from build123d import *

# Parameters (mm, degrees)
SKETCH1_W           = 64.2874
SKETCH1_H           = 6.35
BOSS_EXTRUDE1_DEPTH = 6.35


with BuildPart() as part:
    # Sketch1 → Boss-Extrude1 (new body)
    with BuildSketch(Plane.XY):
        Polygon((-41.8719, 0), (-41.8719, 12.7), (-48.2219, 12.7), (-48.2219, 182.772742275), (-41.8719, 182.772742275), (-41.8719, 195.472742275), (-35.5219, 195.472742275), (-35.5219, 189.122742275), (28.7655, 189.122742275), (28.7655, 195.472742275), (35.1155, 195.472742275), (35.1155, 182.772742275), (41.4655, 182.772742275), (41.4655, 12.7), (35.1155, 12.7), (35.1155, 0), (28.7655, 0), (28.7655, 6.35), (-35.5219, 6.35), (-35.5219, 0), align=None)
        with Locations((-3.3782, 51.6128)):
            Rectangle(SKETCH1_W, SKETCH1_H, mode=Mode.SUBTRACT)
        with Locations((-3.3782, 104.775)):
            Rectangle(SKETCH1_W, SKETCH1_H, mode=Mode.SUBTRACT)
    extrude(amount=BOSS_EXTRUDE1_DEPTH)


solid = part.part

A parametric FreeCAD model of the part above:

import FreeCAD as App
import Part
import Sketcher
Q = App.Units.Quantity

doc = App.newDocument("Part")
params = doc.addObject("Spreadsheet::Sheet", "Params")
for row, (alias, value) in enumerate([
    ("sketch1_height", "0.5 in"),
    ("sketch1_width", "0.25 in"),
    ("sketch1_width2", "2.531 in"),
    ("pad1_length", "0.25 in"),
], start=1):
    params.set(f"A{row}", alias)
    params.set(f"B{row}", "=" + value)
    params.setAlias(f"B{row}", alias)

body = doc.addObject("PartDesign::Body", "Body")

sketch1 = doc.addObject("Sketcher::SketchObject", "Sketch")
body.addObject(sketch1)
sketch1.AttachmentSupport = (doc.XY_Plane, [""])
sketch1.MapMode = "FlatFace"
sketch1.addGeometry([
    Part.LineSegment(App.Vector(-41.8719, 12.7, 0), App.Vector(-41.8719, 0, 0)),
    Part.LineSegment(App.Vector(-41.8719, 0, 0), App.Vector(-35.5219, 0, 0)),
    Part.LineSegment(App.Vector(-35.5219, 0, 0), App.Vector(-35.5219, 6.35, 0)),
    Part.LineSegment(App.Vector(-35.5219, 6.35, 0), App.Vector(28.7655, 6.35, 0)),
    Part.LineSegment(App.Vector(28.7655, 6.35, 0), App.Vector(28.7655, 0, 0)),
    Part.LineSegment(App.Vector(28.7655, 0, 0), App.Vector(35.1155, 0, 0)),
    Part.LineSegment(App.Vector(35.1155, 0, 0), App.Vector(35.1155, 12.7, 0)),
    Part.LineSegment(App.Vector(35.1155, 12.7, 0), App.Vector(41.4655, 12.7, 0)),
    Part.LineSegment(App.Vector(41.4655, 12.7, 0), App.Vector(41.4655, 182.772742, 0)),
    Part.LineSegment(App.Vector(41.4655, 182.772742, 0), App.Vector(35.1155, 182.772742, 0)),
    Part.LineSegment(App.Vector(35.1155, 182.772742, 0), App.Vector(35.1155, 195.472742, 0)),
    Part.LineSegment(App.Vector(35.1155, 195.472742, 0), App.Vector(28.7655, 195.472742, 0)),
    Part.LineSegment(App.Vector(28.7655, 195.472742, 0), App.Vector(28.7655, 189.122742, 0)),
    Part.LineSegment(App.Vector(28.7655, 189.122742, 0), App.Vector(-35.5219, 189.122742, 0)),
    Part.LineSegment(App.Vector(-35.5219, 189.122742, 0), App.Vector(-35.5219, 195.472742, 0)),
    Part.LineSegment(App.Vector(-35.5219, 195.472742, 0), App.Vector(-41.8719, 195.472742, 0)),
    Part.LineSegment(App.Vector(-41.8719, 195.472742, 0), App.Vector(-41.8719, 182.772742, 0)),
    Part.LineSegment(App.Vector(-41.8719, 182.772742, 0), App.Vector(-48.2219, 182.772742, 0)),
    Part.LineSegment(App.Vector(-48.2219, 182.772742, 0), App.Vector(-48.2219, 12.7, 0)),
    Part.LineSegment(App.Vector(-48.2219, 12.7, 0), App.Vector(-41.8719, 12.7, 0)),
    Part.LineSegment(App.Vector(-35.5219, 48.4378, 0), App.Vector(-35.5219, 54.7878, 0)),
    Part.LineSegment(App.Vector(-35.5219, 54.7878, 0), App.Vector(28.7655, 54.7878, 0)),
    Part.LineSegment(App.Vector(28.7655, 54.7878, 0), App.Vector(28.7655, 48.4378, 0)),
    Part.LineSegment(App.Vector(28.7655, 48.4378, 0), App.Vector(-35.5219, 48.4378, 0)),
    Part.LineSegment(App.Vector(-35.5219, 101.6, 0), App.Vector(-35.5219, 107.95, 0)),
    Part.LineSegment(App.Vector(-35.5219, 107.95, 0), App.Vector(28.7655, 107.95, 0)),
    Part.LineSegment(App.Vector(28.7655, 107.95, 0), App.Vector(28.7655, 101.6, 0)),
    Part.LineSegment(App.Vector(28.7655, 101.6, 0), App.Vector(-35.5219, 101.6, 0)),
], False)
sketch1.addConstraint([
    Sketcher.Constraint("Coincident", 0, 2, 1, 1),
    Sketcher.Constraint("Coincident", 1, 2, 2, 1),
    Sketcher.Constraint("Coincident", 2, 2, 3, 1),
    Sketcher.Constraint("Coincident", 3, 2, 4, 1),
    Sketcher.Constraint("Coincident", 4, 2, 5, 1),
    Sketcher.Constraint("Coincident", 5, 2, 6, 1),
    Sketcher.Constraint("Coincident", 6, 2, 7, 1),
    Sketcher.Constraint("Coincident", 7, 2, 8, 1),
    Sketcher.Constraint("Coincident", 8, 2, 9, 1),
    Sketcher.Constraint("Coincident", 9, 2, 10, 1),
    Sketcher.Constraint("Coincident", 10, 2, 11, 1),
    Sketcher.Constraint("Coincident", 11, 2, 12, 1),
    Sketcher.Constraint("Coincident", 12, 2, 13, 1),
    Sketcher.Constraint("Coincident", 13, 2, 14, 1),
    Sketcher.Constraint("Coincident", 14, 2, 15, 1),
    Sketcher.Constraint("Coincident", 15, 2, 16, 1),
    Sketcher.Constraint("Coincident", 16, 2, 17, 1),
    Sketcher.Constraint("Coincident", 17, 2, 18, 1),
    Sketcher.Constraint("Coincident", 18, 2, 19, 1),
    Sketcher.Constraint("Coincident", 19, 2, 0, 1),
    Sketcher.Constraint("Coincident", 20, 2, 21, 1),
    Sketcher.Constraint("Coincident", 21, 2, 22, 1),
    Sketcher.Constraint("Coincident", 22, 2, 23, 1),
    Sketcher.Constraint("Coincident", 23, 2, 20, 1),
    Sketcher.Constraint("Coincident", 24, 2, 25, 1),
    Sketcher.Constraint("Coincident", 25, 2, 26, 1),
    Sketcher.Constraint("Coincident", 26, 2, 27, 1),
    Sketcher.Constraint("Coincident", 27, 2, 24, 1),
    Sketcher.Constraint("Vertical", 0),
    Sketcher.Constraint("Horizontal", 1),
    Sketcher.Constraint("Vertical", 2),
    Sketcher.Constraint("Horizontal", 3),
    Sketcher.Constraint("Vertical", 4),
    Sketcher.Constraint("Horizontal", 5),
    Sketcher.Constraint("Vertical", 6),
    Sketcher.Constraint("Horizontal", 7),
    Sketcher.Constraint("Vertical", 8),
    Sketcher.Constraint("Horizontal", 9),
    Sketcher.Constraint("Vertical", 10),
    Sketcher.Constraint("Horizontal", 11),
    Sketcher.Constraint("Vertical", 12),
    Sketcher.Constraint("Horizontal", 13),
    Sketcher.Constraint("Vertical", 14),
    Sketcher.Constraint("Horizontal", 15),
    Sketcher.Constraint("Vertical", 16),
    Sketcher.Constraint("Horizontal", 17),
    Sketcher.Constraint("Vertical", 18),
    Sketcher.Constraint("Horizontal", 19),
    Sketcher.Constraint("Vertical", 20),
    Sketcher.Constraint("Horizontal", 21),
    Sketcher.Constraint("Vertical", 22),
    Sketcher.Constraint("Horizontal", 23),
    Sketcher.Constraint("Vertical", 24),
    Sketcher.Constraint("Horizontal", 25),
    Sketcher.Constraint("Vertical", 26),
    Sketcher.Constraint("Horizontal", 27),
    Sketcher.Constraint("PointOnObject", 0, 2, -1),
    Sketcher.Constraint("PointOnObject", 4, 2, -1),
    Sketcher.Constraint("Horizontal", 11, 2, 14, 2),
    Sketcher.Constraint("Horizontal", 9, 2, 16, 2),
    Sketcher.Constraint("Horizontal", 7, 2, 18, 2),
    Sketcher.Constraint("Vertical", 6, 2, 9, 2),
    Sketcher.Constraint("Vertical", 4, 2, 11, 2),
    Sketcher.Constraint("Vertical", 2, 2, 13, 2),
    Sketcher.Constraint("Vertical", 0, 2, 15, 2),
    Sketcher.Constraint("Vertical", 14, 2, 20, 2),
    Sketcher.Constraint("Vertical", 12, 2, 21, 2),
    Sketcher.Constraint("Vertical", 23, 2, 24, 2),
    Sketcher.Constraint("Vertical", 22, 2, 25, 2),
    Sketcher.Constraint("Equal", 1, 5),
    Sketcher.Constraint("Equal", 5, 7),
    Sketcher.Constraint("Equal", 15, 17),
    Sketcher.Constraint("Equal", 19, 2),
    Sketcher.Constraint("Equal", 6, 10),
    Sketcher.Constraint("Equal", 4, 12),
    Sketcher.Constraint("Equal", 14, 20),
    Sketcher.Constraint("Equal", 22, 24),
    Sketcher.Constraint("DistanceY", 0, 2, 0, 1, Q("0.5 in")),
    Sketcher.Constraint("DistanceY", -1, 1, 26, 2, Q("4 in")),
    Sketcher.Constraint("DistanceX", 1, 1, 1, 2, Q("0.25 in")),
    Sketcher.Constraint("DistanceX", 3, 1, 3, 2, Q("2.531 in")),
    Sketcher.Constraint("DistanceY", -1, 1, 20, 2, Q("2.157 in")),
    Sketcher.Constraint("DistanceX", 0, 2, -1, 1, Q("1.6485 in")),
    Sketcher.Constraint("DistanceY", 8, 1, 8, 2, 170.072742),
])
sketch1.setExpression("Constraints[77]", "Params.sketch1_height")
sketch1.setExpression("Constraints[79]", "Params.sketch1_width")
sketch1.setExpression("Constraints[80]", "Params.sketch1_width2")
pad1 = doc.addObject("PartDesign::Pad", "Pad")
body.addObject(pad1)
pad1.Profile = sketch1
pad1.setExpression("Length", "Params.pad1_length")

doc.recompute()
